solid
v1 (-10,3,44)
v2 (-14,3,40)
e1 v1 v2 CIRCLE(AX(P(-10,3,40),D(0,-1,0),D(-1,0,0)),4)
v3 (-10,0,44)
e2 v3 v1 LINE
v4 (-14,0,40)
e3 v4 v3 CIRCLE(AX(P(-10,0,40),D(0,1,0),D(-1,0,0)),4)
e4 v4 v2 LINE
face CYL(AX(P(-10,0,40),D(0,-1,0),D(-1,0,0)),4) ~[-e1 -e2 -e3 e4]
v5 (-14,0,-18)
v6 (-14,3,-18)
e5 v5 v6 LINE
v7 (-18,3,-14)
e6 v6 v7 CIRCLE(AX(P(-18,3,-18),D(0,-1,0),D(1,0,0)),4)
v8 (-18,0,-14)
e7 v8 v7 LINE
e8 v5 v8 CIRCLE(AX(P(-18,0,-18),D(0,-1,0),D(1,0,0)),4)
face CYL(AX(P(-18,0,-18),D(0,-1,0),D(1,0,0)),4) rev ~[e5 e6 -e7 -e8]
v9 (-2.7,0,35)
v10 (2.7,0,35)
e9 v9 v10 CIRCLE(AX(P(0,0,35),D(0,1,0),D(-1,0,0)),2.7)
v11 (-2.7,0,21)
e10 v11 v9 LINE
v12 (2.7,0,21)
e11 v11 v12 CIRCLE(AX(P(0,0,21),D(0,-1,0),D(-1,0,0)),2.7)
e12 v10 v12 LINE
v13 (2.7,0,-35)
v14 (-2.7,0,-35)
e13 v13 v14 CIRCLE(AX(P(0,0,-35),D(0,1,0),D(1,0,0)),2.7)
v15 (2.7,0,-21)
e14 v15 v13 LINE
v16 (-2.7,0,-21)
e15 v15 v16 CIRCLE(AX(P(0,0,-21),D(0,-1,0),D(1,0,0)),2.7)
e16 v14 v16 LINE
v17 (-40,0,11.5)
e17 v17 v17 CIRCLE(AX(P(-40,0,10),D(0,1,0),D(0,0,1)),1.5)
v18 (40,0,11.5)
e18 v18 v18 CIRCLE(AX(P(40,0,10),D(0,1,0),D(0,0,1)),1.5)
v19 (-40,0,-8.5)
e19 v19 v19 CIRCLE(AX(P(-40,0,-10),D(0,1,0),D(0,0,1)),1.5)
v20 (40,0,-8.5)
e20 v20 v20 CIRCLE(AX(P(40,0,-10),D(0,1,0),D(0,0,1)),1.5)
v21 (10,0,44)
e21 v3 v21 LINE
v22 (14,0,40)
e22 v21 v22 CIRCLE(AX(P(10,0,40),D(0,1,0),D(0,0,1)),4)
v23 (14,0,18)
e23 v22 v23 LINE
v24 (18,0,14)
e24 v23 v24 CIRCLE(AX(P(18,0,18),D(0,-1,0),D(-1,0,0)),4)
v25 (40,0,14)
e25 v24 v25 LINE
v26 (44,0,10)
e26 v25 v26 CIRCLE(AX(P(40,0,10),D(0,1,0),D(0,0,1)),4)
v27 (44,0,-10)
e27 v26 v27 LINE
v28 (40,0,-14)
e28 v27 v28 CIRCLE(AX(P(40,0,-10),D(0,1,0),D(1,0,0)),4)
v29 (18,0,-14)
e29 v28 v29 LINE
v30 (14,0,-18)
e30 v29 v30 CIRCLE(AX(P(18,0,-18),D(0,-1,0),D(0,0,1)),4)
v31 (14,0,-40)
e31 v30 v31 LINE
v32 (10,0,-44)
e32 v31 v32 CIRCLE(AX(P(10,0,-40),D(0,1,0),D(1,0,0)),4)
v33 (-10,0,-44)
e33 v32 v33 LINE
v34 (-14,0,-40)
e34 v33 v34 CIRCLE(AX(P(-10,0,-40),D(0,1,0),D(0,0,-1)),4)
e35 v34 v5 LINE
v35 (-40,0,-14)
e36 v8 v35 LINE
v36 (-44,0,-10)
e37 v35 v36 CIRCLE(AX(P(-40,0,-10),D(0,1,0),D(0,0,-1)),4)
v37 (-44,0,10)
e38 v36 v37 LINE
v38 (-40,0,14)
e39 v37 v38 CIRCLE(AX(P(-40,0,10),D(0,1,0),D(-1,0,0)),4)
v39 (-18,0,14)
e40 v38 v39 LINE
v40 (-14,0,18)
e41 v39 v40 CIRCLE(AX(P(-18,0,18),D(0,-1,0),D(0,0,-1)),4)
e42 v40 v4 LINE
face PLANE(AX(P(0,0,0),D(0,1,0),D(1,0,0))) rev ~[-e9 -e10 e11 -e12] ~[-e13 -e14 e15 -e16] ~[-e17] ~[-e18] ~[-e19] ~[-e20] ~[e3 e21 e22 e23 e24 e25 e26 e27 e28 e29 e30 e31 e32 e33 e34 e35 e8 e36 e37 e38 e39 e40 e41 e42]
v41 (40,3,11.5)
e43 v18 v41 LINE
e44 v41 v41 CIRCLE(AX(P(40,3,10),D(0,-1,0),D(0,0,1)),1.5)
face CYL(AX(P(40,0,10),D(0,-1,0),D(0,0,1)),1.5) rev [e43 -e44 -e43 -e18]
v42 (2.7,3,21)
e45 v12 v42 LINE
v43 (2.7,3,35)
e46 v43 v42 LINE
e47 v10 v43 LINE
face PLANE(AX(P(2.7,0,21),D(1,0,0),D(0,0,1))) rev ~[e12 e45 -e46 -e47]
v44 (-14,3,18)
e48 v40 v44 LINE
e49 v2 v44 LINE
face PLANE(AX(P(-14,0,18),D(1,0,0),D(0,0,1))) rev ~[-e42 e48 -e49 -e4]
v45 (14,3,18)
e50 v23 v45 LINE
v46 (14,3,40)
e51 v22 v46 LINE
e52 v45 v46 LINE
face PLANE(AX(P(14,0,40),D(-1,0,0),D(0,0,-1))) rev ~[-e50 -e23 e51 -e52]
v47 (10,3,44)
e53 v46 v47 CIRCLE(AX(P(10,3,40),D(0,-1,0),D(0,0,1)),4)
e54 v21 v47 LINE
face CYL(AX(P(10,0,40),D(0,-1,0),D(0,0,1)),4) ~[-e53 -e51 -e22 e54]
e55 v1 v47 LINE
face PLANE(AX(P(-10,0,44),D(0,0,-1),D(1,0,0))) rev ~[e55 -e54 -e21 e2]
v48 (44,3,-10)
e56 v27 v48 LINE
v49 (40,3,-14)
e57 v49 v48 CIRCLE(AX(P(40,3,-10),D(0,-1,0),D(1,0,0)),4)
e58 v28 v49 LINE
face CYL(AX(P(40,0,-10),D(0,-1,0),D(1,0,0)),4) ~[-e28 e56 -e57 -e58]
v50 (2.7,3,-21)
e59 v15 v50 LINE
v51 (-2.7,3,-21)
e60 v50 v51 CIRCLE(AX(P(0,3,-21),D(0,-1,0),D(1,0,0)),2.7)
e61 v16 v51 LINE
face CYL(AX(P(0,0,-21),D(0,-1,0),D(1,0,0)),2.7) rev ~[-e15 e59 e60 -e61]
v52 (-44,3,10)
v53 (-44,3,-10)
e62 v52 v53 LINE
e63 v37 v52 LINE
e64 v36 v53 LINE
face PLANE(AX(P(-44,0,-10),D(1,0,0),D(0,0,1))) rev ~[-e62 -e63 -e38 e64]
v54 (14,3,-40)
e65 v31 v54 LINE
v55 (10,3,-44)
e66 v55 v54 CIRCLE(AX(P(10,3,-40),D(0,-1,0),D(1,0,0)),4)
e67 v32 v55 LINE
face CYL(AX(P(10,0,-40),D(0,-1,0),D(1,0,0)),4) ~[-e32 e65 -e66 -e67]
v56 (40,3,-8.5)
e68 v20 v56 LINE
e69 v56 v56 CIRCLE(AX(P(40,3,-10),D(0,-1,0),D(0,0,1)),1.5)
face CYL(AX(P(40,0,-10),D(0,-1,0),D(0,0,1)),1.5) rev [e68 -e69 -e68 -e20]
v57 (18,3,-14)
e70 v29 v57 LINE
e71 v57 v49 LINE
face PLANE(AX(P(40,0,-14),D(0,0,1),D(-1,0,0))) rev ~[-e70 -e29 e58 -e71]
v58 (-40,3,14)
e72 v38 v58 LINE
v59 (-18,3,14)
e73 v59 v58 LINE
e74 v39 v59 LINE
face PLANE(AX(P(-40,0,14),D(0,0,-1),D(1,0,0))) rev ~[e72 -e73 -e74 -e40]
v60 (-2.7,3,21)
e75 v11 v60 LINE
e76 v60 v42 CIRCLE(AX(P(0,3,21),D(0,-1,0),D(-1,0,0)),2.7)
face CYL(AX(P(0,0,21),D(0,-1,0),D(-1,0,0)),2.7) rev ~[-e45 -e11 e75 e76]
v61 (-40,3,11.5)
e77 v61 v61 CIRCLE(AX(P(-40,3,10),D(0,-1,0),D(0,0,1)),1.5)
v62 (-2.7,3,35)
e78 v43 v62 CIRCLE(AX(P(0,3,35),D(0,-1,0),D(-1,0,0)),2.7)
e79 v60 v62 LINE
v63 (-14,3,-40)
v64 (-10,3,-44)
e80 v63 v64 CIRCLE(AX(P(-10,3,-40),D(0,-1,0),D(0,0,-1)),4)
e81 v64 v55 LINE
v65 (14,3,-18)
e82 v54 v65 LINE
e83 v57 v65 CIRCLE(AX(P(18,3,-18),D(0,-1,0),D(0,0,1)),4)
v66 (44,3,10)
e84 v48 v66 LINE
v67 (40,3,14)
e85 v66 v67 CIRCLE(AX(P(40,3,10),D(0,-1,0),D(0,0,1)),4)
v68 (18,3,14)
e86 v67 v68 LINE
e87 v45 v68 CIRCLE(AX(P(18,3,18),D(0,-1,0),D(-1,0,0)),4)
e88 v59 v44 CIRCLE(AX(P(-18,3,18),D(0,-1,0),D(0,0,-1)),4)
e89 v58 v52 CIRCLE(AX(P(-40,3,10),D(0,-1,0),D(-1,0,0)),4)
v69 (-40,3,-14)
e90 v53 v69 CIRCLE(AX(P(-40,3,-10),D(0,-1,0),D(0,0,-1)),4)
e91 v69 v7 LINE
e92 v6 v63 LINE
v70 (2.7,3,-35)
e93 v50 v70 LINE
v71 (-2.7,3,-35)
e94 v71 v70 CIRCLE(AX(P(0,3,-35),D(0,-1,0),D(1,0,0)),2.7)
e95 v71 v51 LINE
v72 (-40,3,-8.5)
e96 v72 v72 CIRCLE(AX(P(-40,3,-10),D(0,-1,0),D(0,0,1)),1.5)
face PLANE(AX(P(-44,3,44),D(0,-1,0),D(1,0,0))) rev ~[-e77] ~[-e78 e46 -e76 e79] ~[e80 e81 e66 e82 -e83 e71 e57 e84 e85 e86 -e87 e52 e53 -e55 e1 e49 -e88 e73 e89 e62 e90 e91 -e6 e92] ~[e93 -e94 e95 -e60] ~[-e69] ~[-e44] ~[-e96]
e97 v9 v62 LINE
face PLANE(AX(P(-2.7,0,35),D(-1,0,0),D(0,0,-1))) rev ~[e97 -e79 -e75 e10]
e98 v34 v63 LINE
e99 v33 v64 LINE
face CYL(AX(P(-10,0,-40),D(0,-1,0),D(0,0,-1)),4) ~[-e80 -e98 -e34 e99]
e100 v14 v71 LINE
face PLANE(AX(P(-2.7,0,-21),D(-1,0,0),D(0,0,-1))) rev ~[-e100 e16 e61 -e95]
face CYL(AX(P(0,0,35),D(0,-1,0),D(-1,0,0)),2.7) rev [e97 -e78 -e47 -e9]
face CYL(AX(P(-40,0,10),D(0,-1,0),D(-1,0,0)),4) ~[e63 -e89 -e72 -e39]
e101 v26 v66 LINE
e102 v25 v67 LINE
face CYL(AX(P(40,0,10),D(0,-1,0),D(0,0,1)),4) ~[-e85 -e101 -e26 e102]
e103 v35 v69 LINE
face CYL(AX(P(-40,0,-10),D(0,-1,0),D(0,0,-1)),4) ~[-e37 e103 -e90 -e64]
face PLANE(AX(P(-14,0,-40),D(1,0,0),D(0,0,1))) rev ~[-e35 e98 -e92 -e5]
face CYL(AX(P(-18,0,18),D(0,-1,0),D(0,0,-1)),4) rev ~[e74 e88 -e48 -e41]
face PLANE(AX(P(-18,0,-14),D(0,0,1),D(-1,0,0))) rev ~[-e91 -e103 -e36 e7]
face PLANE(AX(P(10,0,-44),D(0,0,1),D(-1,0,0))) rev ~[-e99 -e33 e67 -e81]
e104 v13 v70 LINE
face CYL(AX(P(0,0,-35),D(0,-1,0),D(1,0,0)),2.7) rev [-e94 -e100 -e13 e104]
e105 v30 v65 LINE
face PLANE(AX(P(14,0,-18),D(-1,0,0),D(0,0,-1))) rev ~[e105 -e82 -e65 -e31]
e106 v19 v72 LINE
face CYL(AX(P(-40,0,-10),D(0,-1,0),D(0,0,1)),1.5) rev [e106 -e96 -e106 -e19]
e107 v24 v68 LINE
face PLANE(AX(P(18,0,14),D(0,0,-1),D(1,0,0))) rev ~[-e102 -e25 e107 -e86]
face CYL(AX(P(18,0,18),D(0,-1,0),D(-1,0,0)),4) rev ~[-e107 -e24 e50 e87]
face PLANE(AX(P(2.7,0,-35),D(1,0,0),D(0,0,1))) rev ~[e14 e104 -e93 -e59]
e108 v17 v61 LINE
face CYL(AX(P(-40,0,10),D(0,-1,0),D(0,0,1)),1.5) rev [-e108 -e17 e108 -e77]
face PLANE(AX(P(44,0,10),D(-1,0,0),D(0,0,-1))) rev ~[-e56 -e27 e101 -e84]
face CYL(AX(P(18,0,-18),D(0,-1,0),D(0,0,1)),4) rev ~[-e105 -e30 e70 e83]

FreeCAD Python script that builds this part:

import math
import FreeCAD as App
import Part
import Sketcher

V = App.Vector


def add_polygon(sketch, points):
    """Adds a closed chain of lines whose ends are joined by coincident constraints."""
    first, n = sketch.GeometryCount, len(points)
    for a, b in zip(points, points[1:] + points[:1]):
        sketch.addGeometry(Part.LineSegment(App.Vector(*a, 0), App.Vector(*b, 0)), False)
    for i in range(n):
        sketch.addConstraint(Sketcher.Constraint("Coincident", first + i, 2, first + (i + 1) % n, 1))

doc = App.newDocument("Part")
body = doc.addObject("PartDesign::Body", "Body")

sketch1 = body.newObject("Sketcher::SketchObject", "Sketch")
sketch1.AttachmentSupport = (doc.getObject("XZ_Plane"), [""])
sketch1.MapMode = "FlatFace"
sketch1.addGeometry(Part.LineSegment(V(14, 40, 0), V(14, 18, 0)), False)
sketch1.addGeometry(Part.ArcOfCircle(Part.Circle(V(18, 18, 0), V(0, 0, 1), 4), math.radians(180), math.radians(270)), False)
sketch1.addGeometry(Part.LineSegment(V(18, 14, 0), V(40, 14, 0)), False)
sketch1.addGeometry(Part.ArcOfCircle(Part.Circle(V(40, 10, 0), V(0, 0, 1), 4), math.radians(0), math.radians(90)), False)
sketch1.addGeometry(Part.LineSegment(V(44, 10, 0), V(44, -10, 0)), False)
sketch1.addGeometry(Part.ArcOfCircle(Part.Circle(V(40, -10, 0), V(0, 0, 1), 4), math.radians(-90), math.radians(0)), False)
sketch1.addGeometry(Part.LineSegment(V(40, -14, 0), V(18, -14, 0)), False)
sketch1.addGeometry(Part.ArcOfCircle(Part.Circle(V(18, -18, 0), V(0, 0, 1), 4), math.radians(90), math.radians(180)), False)
sketch1.addGeometry(Part.LineSegment(V(14, -18, 0), V(14, -40, 0)), False)
sketch1.addGeometry(Part.ArcOfCircle(Part.Circle(V(10, -40, 0), V(0, 0, 1), 4), math.radians(-90), math.radians(0)), False)
sketch1.addGeometry(Part.LineSegment(V(10, -44, 0), V(-10, -44, 0)), False)
sketch1.addGeometry(Part.ArcOfCircle(Part.Circle(V(-10, -40, 0), V(0, 0, 1), 4), math.radians(180), math.radians(270)), False)
sketch1.addGeometry(Part.LineSegment(V(-14, -40, 0), V(-14, -18, 0)), False)
sketch1.addGeometry(Part.ArcOfCircle(Part.Circle(V(-18, -18, 0), V(0, 0, 1), 4), math.radians(0), math.radians(90)), False)
sketch1.addGeometry(Part.LineSegment(V(-18, -14, 0), V(-40, -14, 0)), False)
sketch1.addGeometry(Part.ArcOfCircle(Part.Circle(V(-40, -10, 0), V(0, 0, 1), 4), math.radians(180), math.radians(270)), False)
sketch1.addGeometry(Part.LineSegment(V(-44, -10, 0), V(-44, 10, 0)), False)
sketch1.addGeometry(Part.ArcOfCircle(Part.Circle(V(-40, 10, 0), V(0, 0, 1), 4), math.radians(90), math.radians(180)), False)
sketch1.addGeometry(Part.LineSegment(V(-40, 14, 0), V(-18, 14, 0)), False)
sketch1.addGeometry(Part.ArcOfCircle(Part.Circle(V(-18, 18, 0), V(0, 0, 1), 4), math.radians(-90), math.radians(0)), False)
sketch1.addGeometry(Part.LineSegment(V(-14, 18, 0), V(-14, 40, 0)), False)
sketch1.addGeometry(Part.ArcOfCircle(Part.Circle(V(-10, 40, 0), V(0, 0, 1), 4), math.radians(90), math.radians(180)), False)
sketch1.addGeometry(Part.LineSegment(V(-10, 44, 0), V(10, 44, 0)), False)
sketch1.addGeometry(Part.ArcOfCircle(Part.Circle(V(10, 40, 0), V(0, 0, 1), 4), math.radians(0), math.radians(90)), False)
sketch1.addGeometry(Part.Circle(V(-40, 10, 0), V(0, 0, 1), 1.5), False)
sketch1.addGeometry(Part.ArcOfCircle(Part.Circle(V(0, 30, 0), V(0, 0, 1), 2.7), math.radians(180), math.radians(360)), False)
sketch1.addGeometry(Part.LineSegment(V(2.7, 30, 0), V(2.7, 35, 0)), False)
sketch1.addGeometry(Part.ArcOfCircle(Part.Circle(V(0, 35, 0), V(0, 0, 1), 2.7), math.radians(0), math.radians(180)), False)
sketch1.addGeometry(Part.LineSegment(V(-2.7, 35, 0), V(-2.7, 30, 0)), False)
sketch1.addGeometry(Part.Circle(V(40, 10, 0), V(0, 0, 1), 1.5), False)
sketch1.addGeometry(Part.Circle(V(-40, -10, 0), V(0, 0, 1), 1.5), False)
sketch1.addGeometry(Part.Circle(V(40, -10, 0), V(0, 0, 1), 1.5), False)
sketch1.addGeometry(Part.ArcOfCircle(Part.Circle(V(0, -30, 0), V(0, 0, 1), 2.7), math.radians(0), math.radians(180)), False)
sketch1.addGeometry(Part.LineSegment(V(-2.7, -30, 0), V(-2.7, -35, 0)), False)
sketch1.addGeometry(Part.ArcOfCircle(Part.Circle(V(0, -35, 0), V(0, 0, 1), 2.7), math.radians(180), math.radians(360)), False)
sketch1.addGeometry(Part.LineSegment(V(2.7, -35, 0), V(2.7, -30, 0)), False)
sketch1.addConstraint(Sketcher.Constraint("Tangent", 0, 2, 1, 1))
sketch1.addConstraint(Sketcher.Constraint("Tangent", 1, 2, 2, 1))
sketch1.addConstraint(Sketcher.Constraint("Tangent", 2, 2, 3, 2))
sketch1.addConstraint(Sketcher.Constraint("Tangent", 3, 1, 4, 1))
sketch1.addConstraint(Sketcher.Constraint("Tangent", 4, 2, 5, 2))
sketch1.addConstraint(Sketcher.Constraint("Tangent", 5, 1, 6, 1))
sketch1.addConstraint(Sketcher.Constraint("Tangent", 6, 2, 7, 1))
sketch1.addConstraint(Sketcher.Constraint("Tangent", 7, 2, 8, 1))
sketch1.addConstraint(Sketcher.Constraint("Tangent", 8, 2, 9, 2))
sketch1.addConstraint(Sketcher.Constraint("Tangent", 9, 1, 10, 1))
sketch1.addConstraint(Sketcher.Constraint("Tangent", 10, 2, 11, 2))
sketch1.addConstraint(Sketcher.Constraint("Tangent", 11, 1, 12, 1))
sketch1.addConstraint(Sketcher.Constraint("Tangent", 12, 2, 13, 1))
sketch1.addConstraint(Sketcher.Constraint("Tangent", 13, 2, 14, 1))
sketch1.addConstraint(Sketcher.Constraint("Tangent", 14, 2, 15, 2))
sketch1.addConstraint(Sketcher.Constraint("Tangent", 15, 1, 16, 1))
sketch1.addConstraint(Sketcher.Constraint("Tangent", 16, 2, 17, 2))
sketch1.addConstraint(Sketcher.Constraint("Tangent", 17, 1, 18, 1))
sketch1.addConstraint(Sketcher.Constraint("Tangent", 18, 2, 19, 1))
sketch1.addConstraint(Sketcher.Constraint("Tangent", 19, 2, 20, 1))
sketch1.addConstraint(Sketcher.Constraint("Tangent", 20, 2, 21, 2))
sketch1.addConstraint(Sketcher.Constraint("Tangent", 21, 1, 22, 1))
sketch1.addConstraint(Sketcher.Constraint("Tangent", 22, 2, 23, 2))
sketch1.addConstraint(Sketcher.Constraint("Tangent", 23, 1, 0, 1))
sketch1.addConstraint(Sketcher.Constraint("Tangent", 25, 2, 26, 1))
sketch1.addConstraint(Sketcher.Constraint("Tangent", 26, 2, 27, 1))
sketch1.addConstraint(Sketcher.Constraint("Tangent", 27, 2, 28, 1))
sketch1.addConstraint(Sketcher.Constraint("Tangent", 28, 2, 25, 1))
sketch1.addConstraint(Sketcher.Constraint("Tangent", 32, 2, 33, 1))
sketch1.addConstraint(Sketcher.Constraint("Tangent", 33, 2, 34, 1))
sketch1.addConstraint(Sketcher.Constraint("Tangent", 34, 2, 35, 1))
sketch1.addConstraint(Sketcher.Constraint("Tangent", 35, 2, 32, 1))
sketch1.addConstraint(Sketcher.Constraint("Vertical", 0))
sketch1.addConstraint(Sketcher.Constraint("Horizontal", 2))
sketch1.addConstraint(Sketcher.Constraint("Vertical", 4))
sketch1.addConstraint(Sketcher.Constraint("Horizontal", 6))
sketch1.addConstraint(Sketcher.Constraint("Vertical", 8))
sketch1.addConstraint(Sketcher.Constraint("Horizontal", 10))
sketch1.addConstraint(Sketcher.Constraint("Vertical", 12))
sketch1.addConstraint(Sketcher.Constraint("Horizontal", 14))
sketch1.addConstraint(Sketcher.Constraint("Vertical", 16))
sketch1.addConstraint(Sketcher.Constraint("Horizontal", 18))
sketch1.addConstraint(Sketcher.Constraint("Vertical", 20))
sketch1.addConstraint(Sketcher.Constraint("Horizontal", 22))
sketch1.addConstraint(Sketcher.Constraint("Vertical", 26))
sketch1.addConstraint(Sketcher.Constraint("Vertical", 28))
sketch1.addConstraint(Sketcher.Constraint("Vertical", 33))
sketch1.addConstraint(Sketcher.Constraint("Vertical", 35))
sketch1.addConstraint(Sketcher.Constraint("Coincident", 24, 3, 17, 3))
sketch1.addConstraint(Sketcher.Constraint("Coincident", 29, 3, 3, 3))
sketch1.addConstraint(Sketcher.Constraint("Coincident", 30, 3, 15, 3))
sketch1.addConstraint(Sketcher.Constraint("Coincident", 31, 3, 5, 3))
sketch1.addConstraint(Sketcher.Constraint("Equal", 1, 3))
sketch1.addConstraint(Sketcher.Constraint("Equal", 3, 5))
sketch1.addConstraint(Sketcher.Constraint("Equal", 5, 7))
sketch1.addConstraint(Sketcher.Constraint("Equal", 7, 9))
sketch1.addConstraint(Sketcher.Constraint("Equal", 9, 11))
sketch1.addConstraint(Sketcher.Constraint("Equal", 11, 13))
sketch1.addConstraint(Sketcher.Constraint("Equal", 13, 15))
sketch1.addConstraint(Sketcher.Constraint("Equal", 15, 17))
sketch1.addConstraint(Sketcher.Constraint("Equal", 17, 19))
sketch1.addConstraint(Sketcher.Constraint("Equal", 19, 21))
sketch1.addConstraint(Sketcher.Constraint("Equal", 21, 23))
sketch1.addConstraint(Sketcher.Constraint("Equal", 24, 29))
sketch1.addConstraint(Sketcher.Constraint("Equal", 29, 30))
sketch1.addConstraint(Sketcher.Constraint("Equal", 30, 31))
sketch1.addConstraint(Sketcher.Constraint("Equal", 27, 32))
sketch1.addConstraint(Sketcher.Constraint("Symmetric", 1, 3, 13, 3, -1, 1))
sketch1.addConstraint(Sketcher.Constraint("Symmetric", 5, 3, 17, 3, -1, 1))
sketch1.addConstraint(Sketcher.Constraint("Symmetric", 9, 3, 21, 3, -1, 1))
sketch1.addConstraint(Sketcher.Constraint("Symmetric", 25, 3, 32, 3, -1, 1))
sketch1.addConstraint(Sketcher.Constraint("Symmetric", 7, 3, 13, 3, -2))
sketch1.addConstraint(Sketcher.Constraint("Symmetric", 27, 3, 34, 3, -1))
sketch1.addConstraint(Sketcher.Constraint("Equal", 18, 0))
sketch1.addConstraint(Sketcher.Constraint("Equal", 22, 4))
sketch1.addConstraint(Sketcher.Constraint("Diameter", 24, 3.0))
sketch1.addConstraint(Sketcher.Constraint("Radius", 1, 4.0))
sketch1.addConstraint(Sketcher.Constraint("Radius", 25, 2.7))
sketch1.addConstraint(Sketcher.Constraint("DistanceX", 2, 1, 2, 2, 22.0))
sketch1.addConstraint(Sketcher.Constraint("DistanceX", 10, 2, 10, 1, 20.0))
sketch1.addConstraint(Sketcher.Constraint("DistanceY", 26, 1, 26, 2, 5.0))
sketch1.addConstraint(Sketcher.Constraint("DistanceY", -1, 1, 25, 3, 30.0))
pad1 = body.newObject("PartDesign::Pad", "Pad")
pad1.Profile = sketch1
pad1.Length = 5
pad1.Reversed = True

sketch2 = body.newObject("Sketcher::SketchObject", "Sketch001")
sketch2.AttachmentSupport = (doc.getObject("XZ_Plane"), [""])
sketch2.MapMode = "FlatFace"
sketch2.addGeometry(Part.LineSegment(V(-2.7, -21, 0), V(-2.7, -35, 0)), False)
sketch2.addGeometry(Part.ArcOfCircle(Part.Circle(V(0, -35, 0), V(0, 0, 1), 2.7), math.radians(180), math.radians(360)), False)
sketch2.addGeometry(Part.LineSegment(V(2.7, -35, 0), V(2.7, -21, 0)), False)
sketch2.addGeometry(Part.ArcOfCircle(Part.Circle(V(0, -21, 0), V(0, 0, 1), 2.7), math.radians(0), math.radians(180)), False)
sketch2.addGeometry(Part.ArcOfCircle(Part.Circle(V(0, 21, 0), V(0, 0, 1), 2.7), math.radians(180), math.radians(360)), False)
sketch2.addGeometry(Part.LineSegment(V(2.7, 21, 0), V(2.7, 35, 0)), False)
sketch2.addGeometry(Part.ArcOfCircle(Part.Circle(V(0, 35, 0), V(0, 0, 1), 2.7), math.radians(0), math.radians(180)), False)
sketch2.addGeometry(Part.LineSegment(V(-2.7, 35, 0), V(-2.7, 21, 0)), False)
sketch2.addConstraint(Sketcher.Constraint("Tangent", 0, 2, 1, 1))
sketch2.addConstraint(Sketcher.Constraint("Tangent", 1, 2, 2, 1))
sketch2.addConstraint(Sketcher.Constraint("Tangent", 2, 2, 3, 1))
sketch2.addConstraint(Sketcher.Constraint("Tangent", 3, 2, 0, 1))
sketch2.addConstraint(Sketcher.Constraint("Tangent", 4, 2, 5, 1))
sketch2.addConstraint(Sketcher.Constraint("Tangent", 5, 2, 6, 1))
sketch2.addConstraint(Sketcher.Constraint("Tangent", 6, 2, 7, 1))
sketch2.addConstraint(Sketcher.Constraint("Tangent", 7, 2, 4, 1))
sketch2.addConstraint(Sketcher.Constraint("Vertical", 0))
sketch2.addConstraint(Sketcher.Constraint("Vertical", 2))
sketch2.addConstraint(Sketcher.Constraint("Vertical", 5))
sketch2.addConstraint(Sketcher.Constraint("Vertical", 7))
sketch2.addConstraint(Sketcher.Constraint("Equal", 3, 4))
sketch2.addConstraint(Sketcher.Constraint("Symmetric", 3, 3, 4, 3, -1, 1))
sketch2.addConstraint(Sketcher.Constraint("Symmetric", 1, 3, 6, 3, -1))
sketch2.addConstraint(Sketcher.Constraint("Radius", 1, 2.7))
sketch2.addConstraint(Sketcher.Constraint("DistanceY", 0, 2, 0, 1, 14.0))
sketch2.addConstraint(Sketcher.Constraint("DistanceY", 1, 3, -1, 1, 35.0))
pocket1 = body.newObject("PartDesign::Pocket", "Pocket")
pocket1.Profile = sketch2
pocket1.Length = 10

sketch3 = body.newObject("Sketcher::SketchObject", "Sketch002")
sketch3.AttachmentSupport = (doc.getObject("XY_Plane"), [""])
sketch3.MapMode = "FlatFace"
sketch3.AttachmentOffset = App.Placement(V(0, 0, 44), App.Rotation())
add_polygon(sketch3, [(-44, 5), (-44, 3), (53.682832, 3), (53.682832, 5)])
sketch3.addConstraint(Sketcher.Constraint("Vertical", 0))
sketch3.addConstraint(Sketcher.Constraint("Horizontal", 1))
sketch3.addConstraint(Sketcher.Constraint("Vertical", 2))
sketch3.addConstraint(Sketcher.Constraint("Horizontal", 3))
sketch3.addConstraint(Sketcher.Constraint("DistanceY", 0, 2, 0, 1, 2.0))
sketch3.addConstraint(Sketcher.Constraint("DistanceX", 0, 2, -1, 1, 44.0))
sketch3.addConstraint(Sketcher.Constraint("DistanceY", -1, 1, 0, 2, 3.0))
sketch3.addConstraint(Sketcher.Constraint("DistanceX", 1, 1, 1, 2, 97.682832))
pocket2 = body.newObject("PartDesign::Pocket", "Pocket001")
pocket2.Profile = sketch3
pocket2.Length = 94

doc.recompute()
